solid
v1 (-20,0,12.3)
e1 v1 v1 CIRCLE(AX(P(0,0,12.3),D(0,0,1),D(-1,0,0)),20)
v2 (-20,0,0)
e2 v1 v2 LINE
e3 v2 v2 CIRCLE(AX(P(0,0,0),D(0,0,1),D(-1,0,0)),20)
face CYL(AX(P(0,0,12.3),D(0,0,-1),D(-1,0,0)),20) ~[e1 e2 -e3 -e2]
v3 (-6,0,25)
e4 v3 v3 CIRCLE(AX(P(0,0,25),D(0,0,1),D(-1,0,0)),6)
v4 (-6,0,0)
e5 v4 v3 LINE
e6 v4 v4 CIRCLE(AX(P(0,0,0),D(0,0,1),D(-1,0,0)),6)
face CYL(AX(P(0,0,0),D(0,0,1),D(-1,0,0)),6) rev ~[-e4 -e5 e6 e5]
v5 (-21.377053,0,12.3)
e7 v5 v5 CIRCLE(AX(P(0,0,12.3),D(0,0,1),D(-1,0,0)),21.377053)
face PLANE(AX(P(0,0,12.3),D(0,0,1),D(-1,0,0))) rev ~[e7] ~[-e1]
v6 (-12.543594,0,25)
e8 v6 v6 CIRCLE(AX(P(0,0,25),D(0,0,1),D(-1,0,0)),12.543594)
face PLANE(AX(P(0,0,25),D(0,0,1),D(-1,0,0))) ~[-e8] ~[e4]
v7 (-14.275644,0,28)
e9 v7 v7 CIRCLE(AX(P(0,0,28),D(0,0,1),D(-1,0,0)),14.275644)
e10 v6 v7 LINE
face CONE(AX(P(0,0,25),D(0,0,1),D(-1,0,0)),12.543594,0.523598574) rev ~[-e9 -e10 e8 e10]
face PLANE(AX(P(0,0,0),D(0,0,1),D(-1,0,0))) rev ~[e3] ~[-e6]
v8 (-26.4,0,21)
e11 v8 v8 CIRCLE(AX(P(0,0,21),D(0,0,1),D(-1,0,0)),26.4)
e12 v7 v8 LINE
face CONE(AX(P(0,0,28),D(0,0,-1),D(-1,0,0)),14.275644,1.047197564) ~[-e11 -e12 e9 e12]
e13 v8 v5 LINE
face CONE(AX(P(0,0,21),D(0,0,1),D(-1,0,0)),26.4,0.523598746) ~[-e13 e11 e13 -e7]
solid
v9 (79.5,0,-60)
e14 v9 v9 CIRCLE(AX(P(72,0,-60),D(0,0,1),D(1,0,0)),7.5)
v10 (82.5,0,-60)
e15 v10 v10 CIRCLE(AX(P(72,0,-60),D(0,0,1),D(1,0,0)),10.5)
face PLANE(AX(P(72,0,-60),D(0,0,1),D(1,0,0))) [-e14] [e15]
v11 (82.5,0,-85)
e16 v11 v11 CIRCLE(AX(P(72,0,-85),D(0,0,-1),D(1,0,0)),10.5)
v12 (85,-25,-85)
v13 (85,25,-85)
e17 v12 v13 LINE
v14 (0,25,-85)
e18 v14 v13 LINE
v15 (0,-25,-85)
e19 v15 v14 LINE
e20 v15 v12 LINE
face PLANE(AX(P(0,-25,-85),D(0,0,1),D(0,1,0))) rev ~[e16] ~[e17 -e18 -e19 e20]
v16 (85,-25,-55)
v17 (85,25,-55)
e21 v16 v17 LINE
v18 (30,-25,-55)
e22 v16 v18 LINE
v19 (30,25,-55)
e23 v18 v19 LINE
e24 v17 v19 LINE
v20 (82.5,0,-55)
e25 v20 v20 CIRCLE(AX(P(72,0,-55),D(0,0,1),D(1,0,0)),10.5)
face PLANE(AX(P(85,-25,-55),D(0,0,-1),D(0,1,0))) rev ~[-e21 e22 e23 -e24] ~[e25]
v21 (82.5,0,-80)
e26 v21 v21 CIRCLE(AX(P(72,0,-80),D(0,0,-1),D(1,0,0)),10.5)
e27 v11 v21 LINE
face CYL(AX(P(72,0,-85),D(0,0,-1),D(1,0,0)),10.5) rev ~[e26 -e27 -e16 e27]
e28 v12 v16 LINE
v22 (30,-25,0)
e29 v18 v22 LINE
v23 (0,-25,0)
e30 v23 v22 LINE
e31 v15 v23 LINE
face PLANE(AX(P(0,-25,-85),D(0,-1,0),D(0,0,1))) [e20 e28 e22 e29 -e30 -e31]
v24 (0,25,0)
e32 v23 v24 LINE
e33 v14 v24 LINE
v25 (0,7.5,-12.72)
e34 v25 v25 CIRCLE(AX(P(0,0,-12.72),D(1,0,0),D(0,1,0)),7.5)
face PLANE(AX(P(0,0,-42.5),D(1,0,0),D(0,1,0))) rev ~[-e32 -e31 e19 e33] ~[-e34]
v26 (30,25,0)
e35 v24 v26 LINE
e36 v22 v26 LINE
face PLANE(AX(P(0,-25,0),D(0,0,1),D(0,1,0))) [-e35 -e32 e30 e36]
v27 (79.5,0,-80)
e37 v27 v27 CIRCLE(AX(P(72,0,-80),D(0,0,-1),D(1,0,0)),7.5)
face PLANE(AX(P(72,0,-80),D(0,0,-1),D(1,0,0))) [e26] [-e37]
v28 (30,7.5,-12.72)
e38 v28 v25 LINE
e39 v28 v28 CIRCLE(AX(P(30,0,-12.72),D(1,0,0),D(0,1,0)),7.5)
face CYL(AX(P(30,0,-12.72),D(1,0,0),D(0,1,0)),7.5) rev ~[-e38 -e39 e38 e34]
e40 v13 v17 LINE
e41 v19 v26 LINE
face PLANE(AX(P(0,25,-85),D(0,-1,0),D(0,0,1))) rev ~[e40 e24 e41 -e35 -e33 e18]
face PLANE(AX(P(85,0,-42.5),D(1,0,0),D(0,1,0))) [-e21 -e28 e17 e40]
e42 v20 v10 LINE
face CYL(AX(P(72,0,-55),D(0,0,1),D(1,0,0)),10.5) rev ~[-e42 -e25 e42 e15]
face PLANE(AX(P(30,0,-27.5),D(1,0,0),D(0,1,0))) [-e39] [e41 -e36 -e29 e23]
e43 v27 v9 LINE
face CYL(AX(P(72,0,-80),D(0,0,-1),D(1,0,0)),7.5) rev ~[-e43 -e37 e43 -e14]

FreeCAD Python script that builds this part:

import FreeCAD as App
import Part
import Sketcher

V = App.Vector
Q = App.Units.Quantity

doc = App.newDocument("Part")
body = doc.addObject("PartDesign::Body", "Body")

# Sketch on XZ plane
sketch1 = body.newObject("Sketcher::SketchObject", "Sketch")
sketch1.AttachmentSupport = (doc.getObject("XZ_Plane"), [""])
sketch1.MapMode = "FlatFace"
sketch1.addGeometry([
    Part.LineSegment(V(-20, 0, 0), V(-6, 0, 0)),  # 0
    Part.LineSegment(V(-6, 0, 0), V(-6, 25, 0)),  # 1
    Part.LineSegment(V(-6, 25, 0), V(-12.5, 25, 0)),  # 2
    Part.LineSegment(V(-12.5, 25, 0), V(-14.3, 28, 0)),  # 3
    Part.LineSegment(V(-14.3, 28, 0), V(-26.4, 21, 0)),  # 4
    Part.LineSegment(V(-26.4, 21, 0), V(-21.4, 12.3, 0)),  # 5
    Part.LineSegment(V(-21.4, 12.3, 0), V(-20, 12.3, 0)),  # 6
    Part.LineSegment(V(-20, 12.3, 0), V(-20, 0, 0)),  # 7
], False)
sketch1.addConstraint([
    Sketcher.Constraint("Coincident", 0, 2, 1, 1),
    Sketcher.Constraint("Coincident", 1, 2, 2, 1),
    Sketcher.Constraint("Coincident", 2, 2, 3, 1),
    Sketcher.Constraint("Coincident", 3, 2, 4, 1),
    Sketcher.Constraint("Coincident", 4, 2, 5, 1),
    Sketcher.Constraint("Coincident", 5, 2, 6, 1),
    Sketcher.Constraint("Coincident", 6, 2, 7, 1),
    Sketcher.Constraint("Coincident", 7, 2, 0, 1),
    Sketcher.Constraint("Horizontal", 0),
    Sketcher.Constraint("Vertical", 1),
    Sketcher.Constraint("Horizontal", 2),
    Sketcher.Constraint("Horizontal", 6),
    Sketcher.Constraint("Vertical", 7),
    Sketcher.Constraint("PointOnObject", 0, 2, -1),
    Sketcher.Constraint("Perpendicular", 3, 4),
    Sketcher.Constraint("Perpendicular", 4, 5),
    Sketcher.Constraint("DistanceX", 0, 1, 0, 2, Q("14 mm")),
    Sketcher.Constraint("DistanceY", 1, 1, 1, 2, Q("25 mm")),
    Sketcher.Constraint("Angle", 3, Q("119.999988 deg")),
    Sketcher.Constraint("Distance", 4, Q("14 mm")),
    Sketcher.Constraint("DistanceY", 7, 2, 7, 1, Q("12.3 mm")),
    Sketcher.Constraint("DistanceX", 0, 2, -1, 1, Q("6 mm")),
    Sketcher.Constraint("DistanceY", -1, 1, 3, 2, Q("28 mm")),
    Sketcher.Constraint("DistanceX", 4, 2, -1, 1, Q("26.4 mm")),
])
revolution = body.newObject("PartDesign::Revolution", "Revolution")
revolution.Profile = sketch1
revolution.ReferenceAxis = (sketch1, ["V_Axis"])
revolution.Angle = 360
body2 = doc.addObject("PartDesign::Body", "Body001")

# Sketch on YZ plane
sketch2 = body2.newObject("Sketcher::SketchObject", "Sketch001")
sketch2.AttachmentSupport = (doc.getObject("YZ_Plane001"), [""])
sketch2.MapMode = "FlatFace"
sketch2.addGeometry([
    Part.LineSegment(V(-25, 0, 0), V(-25, -85, 0)),
    Part.LineSegment(V(-25, -85, 0), V(25, -85, 0)),
    Part.LineSegment(V(25, -85, 0), V(25, 0, 0)),
    Part.LineSegment(V(25, 0, 0), V(-25, 0, 0)),
], False)
sketch2.addConstraint([
    Sketcher.Constraint("Coincident", 0, 2, 1, 1),
    Sketcher.Constraint("Coincident", 1, 2, 2, 1),
    Sketcher.Constraint("Coincident", 2, 2, 3, 1),
    Sketcher.Constraint("Coincident", 3, 2, 0, 1),
    Sketcher.Constraint("Vertical", 0),
    Sketcher.Constraint("Horizontal", 1),
    Sketcher.Constraint("Vertical", 2),
    Sketcher.Constraint("Horizontal", 3),
    Sketcher.Constraint("Symmetric", 2, 2, 3, 2, -1, 1),
    Sketcher.Constraint("DistanceX", 1, 1, 1, 2, Q("50 mm")),
    Sketcher.Constraint("DistanceY", 0, 2, 0, 1, Q("85 mm")),
])
pad1 = body2.newObject("PartDesign::Pad", "Pad")
pad1.Profile = sketch2
pad1.Length = 85

# Sketch on YZ plane
sketch3 = body2.newObject("Sketcher::SketchObject", "Sketch002")
sketch3.AttachmentSupport = (doc.getObject("YZ_Plane001"), [""])
sketch3.MapMode = "FlatFace"
sketch3.AttachmentOffset = App.Placement(V(0, 0, 85), App.Rotation())
sketch3.addGeometry([
    Part.LineSegment(V(-25, 0, 0), V(-25, -55, 0)),
    Part.LineSegment(V(-25, -55, 0), V(25, -55, 0)),
    Part.LineSegment(V(25, -55, 0), V(25, 0, 0)),
    Part.LineSegment(V(25, 0, 0), V(-25, 0, 0)),
], False)
sketch3.addConstraint([
    Sketcher.Constraint("Coincident", 0, 2, 1, 1),
    Sketcher.Constraint("Coincident", 1, 2, 2, 1),
    Sketcher.Constraint("Coincident", 2, 2, 3, 1),
    Sketcher.Constraint("Coincident", 3, 2, 0, 1),
    Sketcher.Constraint("Vertical", 0),
    Sketcher.Constraint("Horizontal", 1),
    Sketcher.Constraint("Vertical", 2),
    Sketcher.Constraint("Horizontal", 3),
    Sketcher.Constraint("Symmetric", 2, 2, 3, 2, -1, 1),
    Sketcher.Constraint("DistanceX", 1, 1, 1, 2, Q("50 mm")),
    Sketcher.Constraint("DistanceY", 0, 2, 0, 1, Q("55 mm")),
])
pocket1 = body2.newObject("PartDesign::Pocket", "Pocket")
pocket1.Profile = sketch3
pocket1.Length = 55

# Sketch on XY plane
sketch4 = body2.newObject("Sketcher::SketchObject", "Sketch003")
sketch4.AttachmentSupport = (doc.getObject("XY_Plane001"), [""])
sketch4.MapMode = "FlatFace"
sketch4.AttachmentOffset = App.Placement(V(0, 0, -85), App.Rotation())
sketch4.addGeometry(Part.Circle(V(72, 0, 0), V(0, 0, 1), 10), False)
sketch4.addConstraint([
    Sketcher.Constraint("PointOnObject", 0, 3, -1),
    Sketcher.Constraint("Diameter", 0, Q("21 mm")),
    Sketcher.Constraint("DistanceX", -1, 1, 0, 3, Q("72 mm")),
])
pocket2 = body2.newObject("PartDesign::Pocket", "Pocket001")
pocket2.Profile = sketch4
pocket2.Length = 5
pocket2.Reversed = True

# Sketch on XY plane
sketch5 = body2.newObject("Sketcher::SketchObject", "Sketch004")
sketch5.AttachmentSupport = (doc.getObject("XY_Plane001"), [""])
sketch5.MapMode = "FlatFace"
sketch5.AttachmentOffset = App.Placement(V(0, 0, -80), App.Rotation())
sketch5.addGeometry(Part.Circle(V(72, 0, 0), V(0, 0, 1), 8), False)
sketch5.addConstraint([
    Sketcher.Constraint("PointOnObject", 0, 3, -1),
    Sketcher.Constraint("Diameter", 0, Q("15 mm")),
    Sketcher.Constraint("DistanceX", -1, 1, 0, 3, Q("72 mm")),
])
pocket3 = body2.newObject("PartDesign::Pocket", "Pocket002")
pocket3.Profile = sketch5
pocket3.Length = 40
pocket3.Reversed = True

# Sketch on XY plane
sketch6 = body2.newObject("Sketcher::SketchObject", "Sketch005")
sketch6.AttachmentSupport = (doc.getObject("XY_Plane001"), [""])
sketch6.MapMode = "FlatFace"
sketch6.AttachmentOffset = App.Placement(V(0, 0, -55), App.Rotation())
sketch6.addGeometry([
    Part.Circle(V(72, 0, 0), V(0, 0, 1), 10),
    Part.Circle(V(72, 0, 0), V(0, 0, 1), 8),
], False)
sketch6.addConstraint([
    Sketcher.Constraint("Coincident", 1, 3, 0, 3),
    Sketcher.Constraint("PointOnObject", 0, 3, -1),
    Sketcher.Constraint("Diameter", 0, Q("21 mm")),
    Sketcher.Constraint("Diameter", 1, Q("15 mm")),
    Sketcher.Constraint("DistanceX", -1, 1, 0, 3, Q("72 mm")),
])
pocket4 = body2.newObject("PartDesign::Pocket", "Pocket003")
pocket4.Profile = sketch6
pocket4.Length = 5

# Sketch on YZ plane
sketch7 = body2.newObject("Sketcher::SketchObject", "Sketch006")
sketch7.AttachmentSupport = (doc.getObject("YZ_Plane001"), [""])
sketch7.MapMode = "FlatFace"
sketch7.AttachmentOffset = App.Placement(V(0, 0, 30), App.Rotation())
sketch7.addGeometry(Part.Circle(V(0, -13, 0), V(0, 0, 1), 8), False)
sketch7.addConstraint([
    Sketcher.Constraint("PointOnObject", 0, 3, -2),
    Sketcher.Constraint("Diameter", 0, Q("15 mm")),
    Sketcher.Constraint("DistanceY", 0, 3, -1, 1, Q("12.72 mm")),
])
pocket5 = body2.newObject("PartDesign::Pocket", "Pocket004")
pocket5.Profile = sketch7
pocket5.Type = "ThroughAll"

doc.recompute()
